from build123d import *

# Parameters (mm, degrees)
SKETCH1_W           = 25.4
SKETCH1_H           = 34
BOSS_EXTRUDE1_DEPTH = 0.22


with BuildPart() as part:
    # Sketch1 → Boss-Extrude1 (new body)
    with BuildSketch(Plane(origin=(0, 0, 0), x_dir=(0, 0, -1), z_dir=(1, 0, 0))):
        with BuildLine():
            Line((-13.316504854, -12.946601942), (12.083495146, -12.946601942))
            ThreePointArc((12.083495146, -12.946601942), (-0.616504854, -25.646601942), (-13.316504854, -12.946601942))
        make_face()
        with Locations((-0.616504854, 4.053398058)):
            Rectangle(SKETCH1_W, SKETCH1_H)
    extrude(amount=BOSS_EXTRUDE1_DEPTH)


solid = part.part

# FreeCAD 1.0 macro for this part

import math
import FreeCAD as App
import Part
import Sketcher
from FreeCAD import Vector
Q = App.Units.Quantity

doc = App.newDocument("Part")
body = doc.addObject("PartDesign::Body", "Body")

sketch1 = body.newObject("Sketcher::SketchObject", "Sketch")
sketch1.AttachmentSupport = (doc.getObject("YZ_Plane"), [""])
sketch1.MapMode = "FlatFace"
sketch1.addGeometry(Part.ArcOfCircle(Part.Circle(Vector(-13, 1, 0), Vector(0, 0, 1), 13), math.radians(90), math.radians(270)), False)
sketch1.addGeometry(Part.LineSegment(Vector(-13, -12, 0), Vector(21, -12, 0)), False)
sketch1.addGeometry(Part.LineSegment(Vector(21, -12, 0), Vector(21, 13, 0)), False)
sketch1.addGeometry(Part.LineSegment(Vector(21, 13, 0), Vector(-13, 13, 0)), False)
sketch1.addConstraint(Sketcher.Constraint("Tangent", 0, 2, 1, 1))
sketch1.addConstraint(Sketcher.Constraint("Coincident", 1, 2, 2, 1))
sketch1.addConstraint(Sketcher.Constraint("Coincident", 2, 2, 3, 1))
sketch1.addConstraint(Sketcher.Constraint("Tangent", 3, 2, 0, 1))
sketch1.addConstraint(Sketcher.Constraint("Horizontal", 1))
sketch1.addConstraint(Sketcher.Constraint("Vertical", 2))
sketch1.addConstraint(Sketcher.Constraint("Horizontal", 3))
sketch1.addConstraint(Sketcher.Constraint("Radius", 0, Q("12.7 mm")))
sketch1.addConstraint(Sketcher.Constraint("DistanceX", 1, 1, 1, 2, Q("34 mm")))
sketch1.addConstraint(Sketcher.Constraint("DistanceX", 0, 3, -1, 1, Q("12.946602 mm")))
sketch1.addConstraint(Sketcher.Constraint("DistanceY", -1, 1, 0, 3, Q("0.616505 mm")))
pad1 = body.newObject("PartDesign::Pad", "Pad")
pad1.Profile = sketch1
pad1.Length = 0.22

doc.recompute()
